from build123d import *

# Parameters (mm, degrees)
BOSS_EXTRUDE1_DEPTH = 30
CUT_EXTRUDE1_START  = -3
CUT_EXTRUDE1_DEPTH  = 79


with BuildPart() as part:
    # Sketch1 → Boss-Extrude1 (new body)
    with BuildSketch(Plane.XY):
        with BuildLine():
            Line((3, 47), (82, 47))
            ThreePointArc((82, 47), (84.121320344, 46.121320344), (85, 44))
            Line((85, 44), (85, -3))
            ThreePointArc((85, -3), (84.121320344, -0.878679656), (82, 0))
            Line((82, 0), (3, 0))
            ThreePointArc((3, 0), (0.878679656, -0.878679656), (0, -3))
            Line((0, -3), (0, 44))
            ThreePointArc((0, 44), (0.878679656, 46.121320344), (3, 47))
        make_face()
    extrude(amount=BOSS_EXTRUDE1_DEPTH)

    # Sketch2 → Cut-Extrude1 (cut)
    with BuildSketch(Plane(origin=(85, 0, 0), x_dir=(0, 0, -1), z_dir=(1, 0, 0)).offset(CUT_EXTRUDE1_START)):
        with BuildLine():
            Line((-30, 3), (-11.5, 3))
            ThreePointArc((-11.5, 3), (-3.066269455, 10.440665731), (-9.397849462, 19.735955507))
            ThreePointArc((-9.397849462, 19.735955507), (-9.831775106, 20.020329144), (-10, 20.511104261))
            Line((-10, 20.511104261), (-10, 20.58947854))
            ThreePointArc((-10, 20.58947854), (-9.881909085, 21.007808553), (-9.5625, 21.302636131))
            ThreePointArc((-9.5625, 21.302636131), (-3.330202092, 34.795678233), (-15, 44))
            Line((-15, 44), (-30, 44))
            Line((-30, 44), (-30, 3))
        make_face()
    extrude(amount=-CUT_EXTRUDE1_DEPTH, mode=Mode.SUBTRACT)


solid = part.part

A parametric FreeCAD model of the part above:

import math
import FreeCAD as App
import Part
import Sketcher

doc = App.newDocument("Part")
body = doc.addObject("PartDesign::Body", "Body")

# Sketch on XY plane
sketch1 = doc.addObject("Sketcher::SketchObject", "Sketch")
body.addObject(sketch1)
sketch1.AttachmentSupport = (doc.XY_Plane, [""])
sketch1.MapMode = "FlatFace"
sketch1.addGeometry([
    Part.LineSegment(App.Vector(82, 47, 0), App.Vector(3, 47, 0)),  # 0
    Part.ArcOfCircle(Part.Circle(App.Vector(3, 44, 0), App.Vector(0, 0, 1), 3), math.radians(90), math.radians(180)),  # 1
    Part.LineSegment(App.Vector(0, 44, 0), App.Vector(0, -3, 0)),  # 2
    Part.ArcOfCircle(Part.Circle(App.Vector(3, -3, 0), App.Vector(0, 0, 1), 3), math.radians(90), math.radians(180)),  # 3
    Part.LineSegment(App.Vector(3, 0, 0), App.Vector(82, 0, 0)),  # 4
    Part.ArcOfCircle(Part.Circle(App.Vector(82, -3, 0), App.Vector(0, 0, 1), 3), math.radians(0), math.radians(90)),  # 5
    Part.LineSegment(App.Vector(85, -3, 0), App.Vector(85, 44, 0)),  # 6
    Part.ArcOfCircle(Part.Circle(App.Vector(82, 44, 0), App.Vector(0, 0, 1), 3), math.radians(0), math.radians(90)),  # 7
], False)
sketch1.addConstraint([
    Sketcher.Constraint("Tangent", 0, 2, 1, 1),
    Sketcher.Constraint("Tangent", 1, 2, 2, 1),
    Sketcher.Constraint("Tangent", 2, 2, 3, 2),
    Sketcher.Constraint("Tangent", 3, 1, 4, 1),
    Sketcher.Constraint("Tangent", 4, 2, 5, 2),
    Sketcher.Constraint("Tangent", 5, 1, 6, 1),
    Sketcher.Constraint("Tangent", 6, 2, 7, 1),
    Sketcher.Constraint("Tangent", 7, 2, 0, 1),
    Sketcher.Constraint("Horizontal", 0),
    Sketcher.Constraint("Vertical", 2),
    Sketcher.Constraint("Horizontal", 4),
    Sketcher.Constraint("Vertical", 6),
    Sketcher.Constraint("Equal", 1, 3),
    Sketcher.Constraint("Equal", 3, 5),
    Sketcher.Constraint("Equal", 5, 7),
    Sketcher.Constraint("PointOnObject", 1, 2, -2),
    Sketcher.Constraint("PointOnObject", 3, 1, -1),
    Sketcher.Constraint("Radius", 1, 3.0),
    Sketcher.Constraint("DistanceX", 0, 2, 0, 1, 79.0),
    Sketcher.Constraint("DistanceY", 2, 2, 2, 1, 47.0),
])
pad1 = doc.addObject("PartDesign::Pad", "Pad")
body.addObject(pad1)
pad1.Profile = sketch1
pad1.Length = 30

# Sketch on YZ plane
sketch2 = doc.addObject("Sketcher::SketchObject", "Sketch001")
body.addObject(sketch2)
sketch2.AttachmentSupport = (doc.YZ_Plane, [""])
sketch2.MapMode = "FlatFace"
sketch2.AttachmentOffset = App.Placement(App.Vector(0, 0, 82), App.Rotation())
sketch2.addGeometry([
    Part.LineSegment(App.Vector(3, 30, 0), App.Vector(3, 11.5, 0)),  # 0
    Part.ArcOfCircle(Part.Circle(App.Vector(11.5, 11.5, 0), App.Vector(0, 0, 1), 8.5), math.radians(180), math.radians(346)),  # 1
    Part.ArcOfCircle(Part.Circle(App.Vector(20.51, 9.2, 0), App.Vector(0, 0, 1), 0.8), math.radians(90), math.radians(166)),  # 2
    Part.LineSegment(App.Vector(20.51, 10, 0), App.Vector(20.59, 10, 0)),  # 3
    Part.ArcOfCircle(Part.Circle(App.Vector(20.59, 9.2, 0), App.Vector(0, 0, 1), 0.8), math.radians(27), math.radians(90)),  # 4
    Part.ArcOfCircle(Part.Circle(App.Vector(32, 15, 0), App.Vector(0, 0, 1), 12), math.radians(-153), math.radians(0)),  # 5
    Part.LineSegment(App.Vector(44, 15, 0), App.Vector(44, 30, 0)),  # 6
    Part.LineSegment(App.Vector(44, 30, 0), App.Vector(3, 30, 0)),  # 7
], False)
sketch2.addConstraint([
    Sketcher.Constraint("Tangent", 0, 2, 1, 1),
    Sketcher.Constraint("Tangent", 1, 2, 2, 2),
    Sketcher.Constraint("Tangent", 2, 1, 3, 1),
    Sketcher.Constraint("Tangent", 3, 2, 4, 2),
    Sketcher.Constraint("Tangent", 4, 1, 5, 1),
    Sketcher.Constraint("Tangent", 5, 2, 6, 1),
    Sketcher.Constraint("Coincident", 6, 2, 7, 1),
    Sketcher.Constraint("Coincident", 7, 2, 0, 1),
    Sketcher.Constraint("Vertical", 0),
    Sketcher.Constraint("Horizontal", 3),
    Sketcher.Constraint("Vertical", 6),
    Sketcher.Constraint("Horizontal", 7),
    Sketcher.Constraint("Equal", 2, 4),
    Sketcher.Constraint("Radius", 5, 12.0),
    Sketcher.Constraint("Radius", 1, 8.5),
    Sketcher.Constraint("Radius", 2, 0.8),
    Sketcher.Constraint("DistanceX", 7, 2, 7, 1, 41.0),
    Sketcher.Constraint("DistanceY", 6, 1, 6, 2, 15.0),
    Sketcher.Constraint("DistanceY", 0, 2, 0, 1, 18.5),
    Sketcher.Constraint("DistanceX", -1, 1, 5, 3, 32.0),
    Sketcher.Constraint("DistanceY", -1, 1, 5, 3, 15.0),
    Sketcher.Constraint("DistanceY", -1, 1, 2, 1, 10.0),
])
pocket1 = doc.addObject("PartDesign::Pocket", "Pocket")
body.addObject(pocket1)
pocket1.Profile = sketch2
pocket1.Length = 79

doc.recompute()
